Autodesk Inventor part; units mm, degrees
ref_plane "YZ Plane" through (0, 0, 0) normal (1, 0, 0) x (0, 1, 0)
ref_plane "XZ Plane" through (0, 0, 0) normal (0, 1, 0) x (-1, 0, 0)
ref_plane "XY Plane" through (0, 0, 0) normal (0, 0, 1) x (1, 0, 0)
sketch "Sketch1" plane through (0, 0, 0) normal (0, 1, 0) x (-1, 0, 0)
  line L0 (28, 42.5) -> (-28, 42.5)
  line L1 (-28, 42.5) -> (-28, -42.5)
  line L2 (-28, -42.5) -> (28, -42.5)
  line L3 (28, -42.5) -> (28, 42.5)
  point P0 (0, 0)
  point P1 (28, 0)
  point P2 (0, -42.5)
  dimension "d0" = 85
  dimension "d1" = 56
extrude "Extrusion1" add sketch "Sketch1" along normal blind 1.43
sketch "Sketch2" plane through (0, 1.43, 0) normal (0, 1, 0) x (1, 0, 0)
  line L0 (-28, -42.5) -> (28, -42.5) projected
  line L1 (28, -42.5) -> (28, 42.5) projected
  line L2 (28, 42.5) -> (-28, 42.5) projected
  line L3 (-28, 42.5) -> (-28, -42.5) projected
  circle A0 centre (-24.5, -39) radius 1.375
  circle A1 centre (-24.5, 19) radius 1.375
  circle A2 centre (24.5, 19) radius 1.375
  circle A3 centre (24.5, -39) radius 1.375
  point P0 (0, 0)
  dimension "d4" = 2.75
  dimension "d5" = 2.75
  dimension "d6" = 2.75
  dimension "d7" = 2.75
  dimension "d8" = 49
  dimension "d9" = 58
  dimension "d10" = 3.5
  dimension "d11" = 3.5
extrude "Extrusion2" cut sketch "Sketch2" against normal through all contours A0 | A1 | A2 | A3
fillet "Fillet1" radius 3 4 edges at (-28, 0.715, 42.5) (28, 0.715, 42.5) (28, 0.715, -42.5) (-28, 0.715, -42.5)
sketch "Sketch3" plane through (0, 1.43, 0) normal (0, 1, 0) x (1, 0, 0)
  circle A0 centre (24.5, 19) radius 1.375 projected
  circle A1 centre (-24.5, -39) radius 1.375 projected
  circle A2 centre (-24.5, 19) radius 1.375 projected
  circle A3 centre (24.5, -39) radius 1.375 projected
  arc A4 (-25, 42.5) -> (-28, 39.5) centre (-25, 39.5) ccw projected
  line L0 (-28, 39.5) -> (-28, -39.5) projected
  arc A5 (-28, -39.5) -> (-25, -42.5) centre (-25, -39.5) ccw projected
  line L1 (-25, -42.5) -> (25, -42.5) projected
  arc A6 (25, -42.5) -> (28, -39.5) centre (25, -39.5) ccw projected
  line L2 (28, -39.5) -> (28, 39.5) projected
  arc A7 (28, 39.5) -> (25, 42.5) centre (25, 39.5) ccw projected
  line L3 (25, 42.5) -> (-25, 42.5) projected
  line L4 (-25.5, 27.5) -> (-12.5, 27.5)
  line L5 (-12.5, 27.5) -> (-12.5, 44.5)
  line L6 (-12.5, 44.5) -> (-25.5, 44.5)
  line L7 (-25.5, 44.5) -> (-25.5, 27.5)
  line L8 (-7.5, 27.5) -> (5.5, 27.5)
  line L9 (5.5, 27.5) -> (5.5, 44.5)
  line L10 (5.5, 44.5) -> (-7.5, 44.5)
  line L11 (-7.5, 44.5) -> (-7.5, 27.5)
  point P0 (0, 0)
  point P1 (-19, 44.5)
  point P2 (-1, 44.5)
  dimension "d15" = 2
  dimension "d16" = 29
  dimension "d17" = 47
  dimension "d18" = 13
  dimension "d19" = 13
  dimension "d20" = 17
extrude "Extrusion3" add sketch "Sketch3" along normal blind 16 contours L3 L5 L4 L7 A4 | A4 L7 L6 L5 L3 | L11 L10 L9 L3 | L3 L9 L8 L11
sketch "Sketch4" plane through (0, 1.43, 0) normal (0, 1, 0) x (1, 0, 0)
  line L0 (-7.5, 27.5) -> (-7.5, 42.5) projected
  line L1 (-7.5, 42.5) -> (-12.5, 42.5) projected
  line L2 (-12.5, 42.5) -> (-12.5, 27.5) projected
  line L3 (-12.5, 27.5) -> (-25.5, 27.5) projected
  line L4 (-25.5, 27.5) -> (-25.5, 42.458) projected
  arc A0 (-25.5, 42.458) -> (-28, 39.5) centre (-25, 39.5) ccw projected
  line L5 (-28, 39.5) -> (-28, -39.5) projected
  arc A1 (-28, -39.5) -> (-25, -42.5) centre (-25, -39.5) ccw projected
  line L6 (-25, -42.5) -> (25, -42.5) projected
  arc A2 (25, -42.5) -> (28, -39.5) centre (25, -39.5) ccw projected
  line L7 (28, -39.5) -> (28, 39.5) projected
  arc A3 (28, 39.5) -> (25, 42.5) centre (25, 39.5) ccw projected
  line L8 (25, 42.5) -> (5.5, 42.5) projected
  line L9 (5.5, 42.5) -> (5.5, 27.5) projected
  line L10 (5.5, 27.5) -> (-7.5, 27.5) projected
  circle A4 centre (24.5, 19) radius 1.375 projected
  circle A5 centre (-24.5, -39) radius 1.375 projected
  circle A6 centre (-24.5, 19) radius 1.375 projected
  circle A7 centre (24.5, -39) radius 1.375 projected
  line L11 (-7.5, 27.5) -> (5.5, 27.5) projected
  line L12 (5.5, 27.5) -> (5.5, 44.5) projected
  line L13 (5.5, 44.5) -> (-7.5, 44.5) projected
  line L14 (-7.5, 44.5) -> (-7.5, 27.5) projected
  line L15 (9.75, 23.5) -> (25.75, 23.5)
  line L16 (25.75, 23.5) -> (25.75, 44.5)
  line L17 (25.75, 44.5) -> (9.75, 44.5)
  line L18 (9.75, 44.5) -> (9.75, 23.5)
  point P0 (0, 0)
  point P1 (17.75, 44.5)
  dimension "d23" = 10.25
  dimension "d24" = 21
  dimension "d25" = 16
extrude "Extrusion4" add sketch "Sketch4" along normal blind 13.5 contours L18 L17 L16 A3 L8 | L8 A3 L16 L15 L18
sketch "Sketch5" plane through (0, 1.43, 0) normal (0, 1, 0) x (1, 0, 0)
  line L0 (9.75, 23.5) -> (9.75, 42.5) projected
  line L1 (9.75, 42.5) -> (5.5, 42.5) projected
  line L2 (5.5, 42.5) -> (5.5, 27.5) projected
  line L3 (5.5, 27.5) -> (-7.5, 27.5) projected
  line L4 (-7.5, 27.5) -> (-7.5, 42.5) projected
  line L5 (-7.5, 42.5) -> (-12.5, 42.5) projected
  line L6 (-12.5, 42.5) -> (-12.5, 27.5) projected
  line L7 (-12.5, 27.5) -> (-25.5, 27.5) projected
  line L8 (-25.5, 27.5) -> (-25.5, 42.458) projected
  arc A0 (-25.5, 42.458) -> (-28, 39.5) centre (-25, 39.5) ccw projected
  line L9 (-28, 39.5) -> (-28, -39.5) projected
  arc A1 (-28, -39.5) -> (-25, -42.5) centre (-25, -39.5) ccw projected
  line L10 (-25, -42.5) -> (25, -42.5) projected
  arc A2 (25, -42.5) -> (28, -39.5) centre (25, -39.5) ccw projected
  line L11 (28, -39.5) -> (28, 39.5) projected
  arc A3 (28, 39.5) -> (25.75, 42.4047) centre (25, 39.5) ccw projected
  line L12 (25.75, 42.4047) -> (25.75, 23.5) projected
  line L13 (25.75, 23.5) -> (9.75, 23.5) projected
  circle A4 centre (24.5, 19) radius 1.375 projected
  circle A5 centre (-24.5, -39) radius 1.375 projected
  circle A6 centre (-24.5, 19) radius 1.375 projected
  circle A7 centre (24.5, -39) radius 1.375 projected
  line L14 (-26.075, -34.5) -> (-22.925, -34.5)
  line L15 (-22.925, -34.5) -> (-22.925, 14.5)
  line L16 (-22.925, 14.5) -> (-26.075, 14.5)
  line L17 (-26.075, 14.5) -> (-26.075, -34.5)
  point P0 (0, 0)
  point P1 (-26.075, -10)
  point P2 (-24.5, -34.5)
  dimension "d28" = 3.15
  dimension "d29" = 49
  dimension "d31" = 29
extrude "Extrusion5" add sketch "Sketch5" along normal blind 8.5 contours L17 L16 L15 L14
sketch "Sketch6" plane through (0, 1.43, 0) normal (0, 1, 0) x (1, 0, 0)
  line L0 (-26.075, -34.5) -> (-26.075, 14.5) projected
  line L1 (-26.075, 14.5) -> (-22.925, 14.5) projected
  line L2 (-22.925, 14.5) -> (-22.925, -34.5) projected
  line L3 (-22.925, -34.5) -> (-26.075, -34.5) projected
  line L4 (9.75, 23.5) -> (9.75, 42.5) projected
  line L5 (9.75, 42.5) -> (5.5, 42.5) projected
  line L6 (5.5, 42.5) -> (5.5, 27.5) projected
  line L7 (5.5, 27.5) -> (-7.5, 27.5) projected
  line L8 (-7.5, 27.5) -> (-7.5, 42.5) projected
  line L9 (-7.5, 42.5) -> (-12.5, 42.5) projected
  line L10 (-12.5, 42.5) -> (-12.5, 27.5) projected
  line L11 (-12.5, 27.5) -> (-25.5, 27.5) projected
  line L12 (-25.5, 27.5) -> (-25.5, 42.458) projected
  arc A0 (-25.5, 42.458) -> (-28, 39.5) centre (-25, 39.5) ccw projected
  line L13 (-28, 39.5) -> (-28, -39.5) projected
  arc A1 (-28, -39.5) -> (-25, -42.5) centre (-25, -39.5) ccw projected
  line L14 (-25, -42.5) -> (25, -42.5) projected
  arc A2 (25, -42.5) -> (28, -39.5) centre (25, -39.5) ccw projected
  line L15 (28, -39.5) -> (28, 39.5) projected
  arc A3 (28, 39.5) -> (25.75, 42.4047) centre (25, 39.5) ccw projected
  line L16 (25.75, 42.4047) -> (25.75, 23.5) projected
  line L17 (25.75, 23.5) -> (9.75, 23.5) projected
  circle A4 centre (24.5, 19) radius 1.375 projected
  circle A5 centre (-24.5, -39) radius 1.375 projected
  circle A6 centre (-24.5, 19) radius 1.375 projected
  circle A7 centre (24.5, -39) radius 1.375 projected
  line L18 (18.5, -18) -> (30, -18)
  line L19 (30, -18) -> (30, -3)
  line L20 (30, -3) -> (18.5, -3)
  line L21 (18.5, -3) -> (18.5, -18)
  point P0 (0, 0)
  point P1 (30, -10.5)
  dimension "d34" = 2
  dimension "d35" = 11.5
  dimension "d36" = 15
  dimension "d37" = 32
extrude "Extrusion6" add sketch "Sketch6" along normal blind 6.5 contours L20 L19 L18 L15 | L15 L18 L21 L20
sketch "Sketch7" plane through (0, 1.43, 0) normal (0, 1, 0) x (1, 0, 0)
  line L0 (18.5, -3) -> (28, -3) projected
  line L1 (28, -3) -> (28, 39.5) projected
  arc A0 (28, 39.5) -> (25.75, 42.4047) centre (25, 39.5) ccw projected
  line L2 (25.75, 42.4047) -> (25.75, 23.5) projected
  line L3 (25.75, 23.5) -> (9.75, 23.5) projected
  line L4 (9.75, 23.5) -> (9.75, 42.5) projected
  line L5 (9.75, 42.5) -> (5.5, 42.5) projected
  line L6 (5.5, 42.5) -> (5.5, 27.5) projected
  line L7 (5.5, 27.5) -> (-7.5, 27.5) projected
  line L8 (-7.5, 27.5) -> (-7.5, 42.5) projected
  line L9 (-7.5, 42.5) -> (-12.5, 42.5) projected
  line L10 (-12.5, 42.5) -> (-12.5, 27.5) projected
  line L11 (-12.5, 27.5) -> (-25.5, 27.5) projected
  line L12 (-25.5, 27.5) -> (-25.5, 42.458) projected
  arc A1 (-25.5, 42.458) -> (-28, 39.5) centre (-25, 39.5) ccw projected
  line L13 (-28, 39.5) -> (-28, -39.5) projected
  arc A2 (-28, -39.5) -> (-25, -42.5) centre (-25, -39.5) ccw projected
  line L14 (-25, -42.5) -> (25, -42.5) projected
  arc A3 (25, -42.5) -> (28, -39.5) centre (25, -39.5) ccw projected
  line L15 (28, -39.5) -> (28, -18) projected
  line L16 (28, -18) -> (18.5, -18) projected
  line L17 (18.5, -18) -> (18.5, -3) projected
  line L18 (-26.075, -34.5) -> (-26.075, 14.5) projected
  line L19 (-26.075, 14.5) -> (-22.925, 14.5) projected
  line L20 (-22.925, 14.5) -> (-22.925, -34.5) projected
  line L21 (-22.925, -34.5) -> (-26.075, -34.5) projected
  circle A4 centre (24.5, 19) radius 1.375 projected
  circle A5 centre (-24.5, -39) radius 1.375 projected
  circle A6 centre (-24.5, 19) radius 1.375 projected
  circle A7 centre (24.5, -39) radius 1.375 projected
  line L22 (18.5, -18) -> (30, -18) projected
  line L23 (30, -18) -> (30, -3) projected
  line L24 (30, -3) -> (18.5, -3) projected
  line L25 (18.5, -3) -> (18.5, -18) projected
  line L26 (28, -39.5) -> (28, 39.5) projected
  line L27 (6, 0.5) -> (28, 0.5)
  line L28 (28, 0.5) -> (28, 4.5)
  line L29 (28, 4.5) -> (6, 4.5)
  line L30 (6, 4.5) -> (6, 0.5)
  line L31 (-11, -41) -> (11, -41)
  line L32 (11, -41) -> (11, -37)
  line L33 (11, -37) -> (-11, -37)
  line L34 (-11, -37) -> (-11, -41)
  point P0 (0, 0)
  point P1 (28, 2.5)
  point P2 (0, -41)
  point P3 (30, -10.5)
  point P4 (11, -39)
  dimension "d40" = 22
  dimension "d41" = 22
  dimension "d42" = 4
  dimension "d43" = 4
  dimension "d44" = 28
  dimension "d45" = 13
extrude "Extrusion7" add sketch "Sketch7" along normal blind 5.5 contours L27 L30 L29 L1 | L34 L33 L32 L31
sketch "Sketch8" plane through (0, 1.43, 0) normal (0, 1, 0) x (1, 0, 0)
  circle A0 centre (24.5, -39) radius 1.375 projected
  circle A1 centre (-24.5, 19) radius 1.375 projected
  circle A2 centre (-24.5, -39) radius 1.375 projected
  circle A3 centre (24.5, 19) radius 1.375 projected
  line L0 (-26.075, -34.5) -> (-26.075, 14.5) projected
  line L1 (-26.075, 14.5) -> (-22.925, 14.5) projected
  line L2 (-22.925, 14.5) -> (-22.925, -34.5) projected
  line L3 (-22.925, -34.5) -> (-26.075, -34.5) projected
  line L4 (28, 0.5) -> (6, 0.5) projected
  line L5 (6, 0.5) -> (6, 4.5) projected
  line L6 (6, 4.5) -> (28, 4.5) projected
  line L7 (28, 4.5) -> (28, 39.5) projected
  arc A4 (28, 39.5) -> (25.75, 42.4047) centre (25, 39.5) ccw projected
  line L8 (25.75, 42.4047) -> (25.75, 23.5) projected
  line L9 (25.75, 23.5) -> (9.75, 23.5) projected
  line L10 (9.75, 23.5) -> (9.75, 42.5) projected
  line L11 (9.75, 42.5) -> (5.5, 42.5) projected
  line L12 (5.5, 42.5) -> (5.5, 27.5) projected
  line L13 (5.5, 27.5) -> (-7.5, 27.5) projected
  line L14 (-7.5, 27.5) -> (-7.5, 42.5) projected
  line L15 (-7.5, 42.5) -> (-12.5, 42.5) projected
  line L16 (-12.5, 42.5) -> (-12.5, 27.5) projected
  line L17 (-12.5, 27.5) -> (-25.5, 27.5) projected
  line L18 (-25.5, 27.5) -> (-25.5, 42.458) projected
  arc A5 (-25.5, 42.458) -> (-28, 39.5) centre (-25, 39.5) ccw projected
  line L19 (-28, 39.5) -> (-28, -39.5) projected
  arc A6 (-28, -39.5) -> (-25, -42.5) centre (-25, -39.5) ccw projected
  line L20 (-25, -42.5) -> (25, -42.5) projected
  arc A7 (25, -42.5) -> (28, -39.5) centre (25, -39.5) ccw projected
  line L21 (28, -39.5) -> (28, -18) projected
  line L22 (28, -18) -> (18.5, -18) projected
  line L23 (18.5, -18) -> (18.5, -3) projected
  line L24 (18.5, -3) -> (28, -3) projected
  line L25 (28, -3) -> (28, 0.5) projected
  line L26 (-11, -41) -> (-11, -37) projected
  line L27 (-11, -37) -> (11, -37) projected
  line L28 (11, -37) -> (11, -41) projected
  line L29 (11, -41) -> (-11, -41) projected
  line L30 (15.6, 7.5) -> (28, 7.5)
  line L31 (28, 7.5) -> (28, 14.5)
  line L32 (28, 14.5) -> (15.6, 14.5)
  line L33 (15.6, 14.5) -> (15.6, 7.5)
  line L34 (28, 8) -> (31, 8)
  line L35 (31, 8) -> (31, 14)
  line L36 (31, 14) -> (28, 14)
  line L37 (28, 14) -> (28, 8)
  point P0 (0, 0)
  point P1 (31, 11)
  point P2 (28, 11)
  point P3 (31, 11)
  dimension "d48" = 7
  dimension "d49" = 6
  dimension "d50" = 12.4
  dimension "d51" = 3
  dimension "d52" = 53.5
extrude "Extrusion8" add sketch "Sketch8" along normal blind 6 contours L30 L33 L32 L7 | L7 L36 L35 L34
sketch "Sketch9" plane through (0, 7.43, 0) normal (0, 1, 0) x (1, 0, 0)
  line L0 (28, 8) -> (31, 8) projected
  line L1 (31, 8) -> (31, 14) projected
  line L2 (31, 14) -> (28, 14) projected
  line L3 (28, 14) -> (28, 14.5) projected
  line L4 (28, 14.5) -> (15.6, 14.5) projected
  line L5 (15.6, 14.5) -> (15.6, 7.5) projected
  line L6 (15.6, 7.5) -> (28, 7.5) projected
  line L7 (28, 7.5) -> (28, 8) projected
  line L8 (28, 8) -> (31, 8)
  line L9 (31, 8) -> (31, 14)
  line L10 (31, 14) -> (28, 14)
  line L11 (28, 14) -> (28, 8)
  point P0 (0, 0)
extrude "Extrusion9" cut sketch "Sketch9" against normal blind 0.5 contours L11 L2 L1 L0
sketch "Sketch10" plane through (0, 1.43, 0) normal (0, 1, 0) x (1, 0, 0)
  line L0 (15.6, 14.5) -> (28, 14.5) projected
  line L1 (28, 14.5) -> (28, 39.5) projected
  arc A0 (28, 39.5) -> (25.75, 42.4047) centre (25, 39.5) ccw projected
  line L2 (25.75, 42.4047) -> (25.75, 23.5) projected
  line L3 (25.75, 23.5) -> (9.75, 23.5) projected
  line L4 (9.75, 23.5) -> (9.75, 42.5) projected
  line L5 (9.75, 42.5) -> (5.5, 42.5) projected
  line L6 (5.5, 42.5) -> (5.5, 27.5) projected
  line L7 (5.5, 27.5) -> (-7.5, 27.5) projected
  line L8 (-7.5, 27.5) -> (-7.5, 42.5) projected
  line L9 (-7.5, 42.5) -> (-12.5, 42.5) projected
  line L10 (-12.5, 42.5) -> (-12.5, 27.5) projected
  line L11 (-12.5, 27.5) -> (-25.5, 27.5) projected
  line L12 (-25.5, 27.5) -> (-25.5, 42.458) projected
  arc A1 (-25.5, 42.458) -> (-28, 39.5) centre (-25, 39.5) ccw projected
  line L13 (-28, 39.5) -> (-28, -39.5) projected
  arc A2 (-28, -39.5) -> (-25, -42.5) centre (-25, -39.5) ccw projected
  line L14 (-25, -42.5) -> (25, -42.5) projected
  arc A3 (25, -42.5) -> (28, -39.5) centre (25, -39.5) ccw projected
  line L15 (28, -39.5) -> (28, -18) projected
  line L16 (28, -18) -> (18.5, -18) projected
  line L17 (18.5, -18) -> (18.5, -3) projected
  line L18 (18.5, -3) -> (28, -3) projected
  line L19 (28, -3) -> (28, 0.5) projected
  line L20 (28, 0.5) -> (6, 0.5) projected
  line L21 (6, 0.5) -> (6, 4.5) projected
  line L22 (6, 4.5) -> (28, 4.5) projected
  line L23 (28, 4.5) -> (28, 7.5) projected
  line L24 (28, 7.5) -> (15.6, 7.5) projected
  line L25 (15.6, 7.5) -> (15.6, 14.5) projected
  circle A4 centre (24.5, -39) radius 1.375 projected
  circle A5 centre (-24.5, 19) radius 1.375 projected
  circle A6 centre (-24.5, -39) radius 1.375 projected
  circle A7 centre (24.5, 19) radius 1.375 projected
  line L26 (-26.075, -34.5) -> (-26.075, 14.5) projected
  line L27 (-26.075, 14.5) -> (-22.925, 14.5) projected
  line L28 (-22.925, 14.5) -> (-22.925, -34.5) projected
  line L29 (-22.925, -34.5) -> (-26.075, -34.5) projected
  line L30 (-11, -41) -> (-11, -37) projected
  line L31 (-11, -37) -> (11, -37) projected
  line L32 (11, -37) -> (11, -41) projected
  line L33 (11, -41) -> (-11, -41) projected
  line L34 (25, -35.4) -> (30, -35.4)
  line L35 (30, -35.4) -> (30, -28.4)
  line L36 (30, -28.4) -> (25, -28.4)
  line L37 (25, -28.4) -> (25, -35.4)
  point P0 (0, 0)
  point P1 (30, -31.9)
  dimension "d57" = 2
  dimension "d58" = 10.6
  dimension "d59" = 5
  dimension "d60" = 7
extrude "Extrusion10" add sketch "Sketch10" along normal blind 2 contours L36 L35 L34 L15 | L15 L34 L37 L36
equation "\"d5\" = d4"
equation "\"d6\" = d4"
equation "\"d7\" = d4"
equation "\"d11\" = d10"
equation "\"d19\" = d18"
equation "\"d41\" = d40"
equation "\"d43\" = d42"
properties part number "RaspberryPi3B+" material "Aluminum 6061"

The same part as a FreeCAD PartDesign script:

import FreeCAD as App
import Part
import Sketcher

V = App.Vector


def edges_at(feature, points):
    """Names of the edges that pass closest to the given points."""
    edges = feature.Shape.Edges
    near = lambda p: min(range(len(edges)), key=lambda i: edges[i].distToShape(Part.Vertex(*p))[0])
    return sorted({f"Edge{near(p) + 1}" for p in points})

doc = App.newDocument("Part")
body = doc.addObject("PartDesign::Body", "Body")

# Sketch on XZ plane
sketch1 = body.newObject("Sketcher::SketchObject", "Sketch")
sketch1.AttachmentSupport = (doc.getObject("XZ_Plane"), [""])
sketch1.MapMode = "FlatFace"
sketch1.addGeometry(Part.LineSegment(V(-28, -42, 0), V(-28, 42, 0)), False)
sketch1.addGeometry(Part.LineSegment(V(-28, 42, 0), V(28, 42, 0)), False)
sketch1.addGeometry(Part.LineSegment(V(28, 42, 0), V(28, -42, 0)), False)
sketch1.addGeometry(Part.LineSegment(V(28, -42, 0), V(-28, -42, 0)), False)
sketch1.addConstraint(Sketcher.Constraint("Coincident", 0, 2, 1, 1))
sketch1.addConstraint(Sketcher.Constraint("Coincident", 1, 2, 2, 1))
sketch1.addConstraint(Sketcher.Constraint("Coincident", 2, 2, 3, 1))
sketch1.addConstraint(Sketcher.Constraint("Coincident", 3, 2, 0, 1))
sketch1.addConstraint(Sketcher.Constraint("Vertical", 0))
sketch1.addConstraint(Sketcher.Constraint("Horizontal", 1))
sketch1.addConstraint(Sketcher.Constraint("Vertical", 2))
sketch1.addConstraint(Sketcher.Constraint("Horizontal", 3))
sketch1.addConstraint(Sketcher.Constraint("Symmetric", 0, 2, 2, 2, -1, 1))
sketch1.addConstraint(Sketcher.Constraint("DistanceX", 1, 1, 1, 2, 56.0))
sketch1.addConstraint(Sketcher.Constraint("DistanceY", 0, 1, 0, 2, 85.0))
pad1 = body.newObject("PartDesign::Pad", "Pad")
pad1.Profile = sketch1
pad1.Length = 1.43
pad1.Reversed = True

# Sketch on XZ plane
sketch2 = body.newObject("Sketcher::SketchObject", "Sketch001")
sketch2.AttachmentSupport = (doc.getObject("XZ_Plane"), [""])
sketch2.MapMode = "FlatFace"
sketch2.AttachmentOffset = App.Placement(V(0, 0, -1.43), App.Rotation())
sketch2.addGeometry(Part.Circle(V(-24.5, 39, 0), V(0, 0, 1), 1.4), False)
sketch2.addGeometry(Part.Circle(V(-24.5, -19, 0), V(0, 0, 1), 1.4), False)
sketch2.addGeometry(Part.Circle(V(24.5, -19, 0), V(0, 0, 1), 1.4), False)
sketch2.addGeometry(Part.Circle(V(24.5, 39, 0), V(0, 0, 1), 1.4), False)
sketch2.addConstraint(Sketcher.Constraint("Equal", 0, 1))
sketch2.addConstraint(Sketcher.Constraint("Equal", 1, 2))
sketch2.addConstraint(Sketcher.Constraint("Equal", 2, 3))
sketch2.addConstraint(Sketcher.Constraint("Symmetric", 1, 3, 2, 3, -2))
sketch2.addConstraint(Sketcher.Constraint("Symmetric", 0, 3, 3, 3, -2))
sketch2.addConstraint(Sketcher.Constraint("Vertical", 0, 3, 1, 3))
sketch2.addConstraint(Sketcher.Constraint("Diameter", 0, 2.75))
sketch2.addConstraint(Sketcher.Constraint("DistanceY", 1, 3, 0, 3, 58.0))
sketch2.addConstraint(Sketcher.Constraint("DistanceX", 1, 3, 2, 3, 49.0))
sketch2.addConstraint(Sketcher.Constraint("DistanceY", -1, 1, 0, 3, 39.0))
pocket1 = body.newObject("PartDesign::Pocket", "Pocket")
pocket1.Profile = sketch2
pocket1.Type = "ThroughAll"
pocket1.Reversed = True
doc.recompute()

fillet = body.newObject("PartDesign::Fillet", "Fillet")
fillet.Base = (pocket1, edges_at(pocket1, [
    (-28, 0.715, 42.5),
    (28, 0.715, 42.5),
    (28, 0.715, -42.5),
    (-28, 0.715, -42.5),
]))
fillet.Radius = 3

# Sketch on XZ plane
sketch3 = body.newObject("Sketcher::SketchObject", "Sketch002")
sketch3.AttachmentSupport = (doc.getObject("XZ_Plane"), [""])
sketch3.MapMode = "FlatFace"
sketch3.AttachmentOffset = App.Placement(V(0, 0, -1.43), App.Rotation())
sketch3.addGeometry(Part.LineSegment(V(-12, -28, 0), V(-12, -44, 0)), False)
sketch3.addGeometry(Part.LineSegment(V(-12, -44, 0), V(-26, -44, 0)), False)
sketch3.addGeometry(Part.LineSegment(V(-26, -44, 0), V(-26, -28, 0)), False)
sketch3.addGeometry(Part.LineSegment(V(-26, -28, 0), V(-12, -28, 0)), False)
sketch3.addGeometry(Part.LineSegment(V(-8, -44, 0), V(-8, -28, 0)), False)
sketch3.addGeometry(Part.LineSegment(V(-8, -28, 0), V(6, -28, 0)), False)
sketch3.addGeometry(Part.LineSegment(V(6, -28, 0), V(6, -44, 0)), False)
sketch3.addGeometry(Part.LineSegment(V(6, -44, 0), V(-8, -44, 0)), False)
sketch3.addConstraint(Sketcher.Constraint("Coincident", 0, 2, 1, 1))
sketch3.addConstraint(Sketcher.Constraint("Coincident", 1, 2, 2, 1))
sketch3.addConstraint(Sketcher.Constraint("Coincident", 2, 2, 3, 1))
sketch3.addConstraint(Sketcher.Constraint("Coincident", 3, 2, 0, 1))
sketch3.addConstraint(Sketcher.Constraint("Coincident", 4, 2, 5, 1))
sketch3.addConstraint(Sketcher.Constraint("Coincident", 5, 2, 6, 1))
sketch3.addConstraint(Sketcher.Constraint("Coincident", 6, 2, 7, 1))
sketch3.addConstraint(Sketcher.Constraint("Coincident", 7, 2, 4, 1))
sketch3.addConstraint(Sketcher.Constraint("Vertical", 0))
sketch3.addConstraint(Sketcher.Constraint("Horizontal", 1))
sketch3.addConstraint(Sketcher.Constraint("Vertical", 2))
sketch3.addConstraint(Sketcher.Constraint("Horizontal", 3))
sketch3.addConstraint(Sketcher.Constraint("Vertical", 4))
sketch3.addConstraint(Sketcher.Constraint("Horizontal", 5))
sketch3.addConstraint(Sketcher.Constraint("Vertical", 6))
sketch3.addConstraint(Sketcher.Constraint("Horizontal", 7))
sketch3.addConstraint(Sketcher.Constraint("Horizontal", 3, 2, 4, 2))
sketch3.addConstraint(Sketcher.Constraint("Horizontal", 1, 2, 6, 2))
sketch3.addConstraint(Sketcher.Constraint("Equal", 3, 5))
sketch3.addConstraint(Sketcher.Constraint("DistanceX", 1, 2, 1, 1, 13.0))
sketch3.addConstraint(Sketcher.Constraint("DistanceY", 0, 2, 0, 1, 17.0))
sketch3.addConstraint(Sketcher.Constraint("DistanceX", 3, 2, 4, 2, 5.0))
sketch3.addConstraint(Sketcher.Constraint("DistanceX", 0, 2, -1, 1, 12.5))
sketch3.addConstraint(Sketcher.Constraint("DistanceY", 0, 2, -1, 1, 44.5))
pad2 = body.newObject("PartDesign::Pad", "Pad001")
pad2.Profile = sketch3
pad2.Length = 16
pad2.Reversed = True

# Sketch on XZ plane
sketch4 = body.newObject("Sketcher::SketchObject", "Sketch003")
sketch4.AttachmentSupport = (doc.getObject("XZ_Plane"), [""])
sketch4.MapMode = "FlatFace"
sketch4.AttachmentOffset = App.Placement(V(0, 0, -1.43), App.Rotation())
sketch4.addGeometry(Part.LineSegment(V(10, -44, 0), V(10, -24, 0)), False)
sketch4.addGeometry(Part.LineSegment(V(10, -24, 0), V(26, -24, 0)), False)
sketch4.addGeometry(Part.LineSegment(V(26, -24, 0), V(26, -44, 0)), False)
sketch4.addGeometry(Part.LineSegment(V(26, -44, 0), V(10, -44, 0)), False)
sketch4.addConstraint(Sketcher.Constraint("Coincident", 0, 2, 1, 1))
sketch4.addConstraint(Sketcher.Constraint("Coincident", 1, 2, 2, 1))
sketch4.addConstraint(Sketcher.Constraint("Coincident", 2, 2, 3, 1))
sketch4.addConstraint(Sketcher.Constraint("Coincident", 3, 2, 0, 1))
sketch4.addConstraint(Sketcher.Constraint("Vertical", 0))
sketch4.addConstraint(Sketcher.Constraint("Horizontal", 1))
sketch4.addConstraint(Sketcher.Constraint("Vertical", 2))
sketch4.addConstraint(Sketcher.Constraint("Horizontal", 3))
sketch4.addConstraint(Sketcher.Constraint("DistanceX", 1, 1, 1, 2, 16.0))
sketch4.addConstraint(Sketcher.Constraint("DistanceY", 0, 1, 0, 2, 21.0))
sketch4.addConstraint(Sketcher.Constraint("DistanceY", 0, 2, -1, 1, 23.5))
sketch4.addConstraint(Sketcher.Constraint("DistanceX", -1, 1, 0, 2, 9.75))
pad3 = body.newObject("PartDesign::Pad", "Pad002")
pad3.Profile = sketch4
pad3.Length = 13.5
pad3.Reversed = True

# Sketch on XZ plane
sketch5 = body.newObject("Sketcher::SketchObject", "Sketch004")
sketch5.AttachmentSupport = (doc.getObject("XZ_Plane"), [""])
sketch5.MapMode = "FlatFace"
sketch5.AttachmentOffset = App.Placement(V(0, 0, -1.43), App.Rotation())
sketch5.addGeometry(Part.LineSegment(V(-26.1, -14.5, 0), V(-26.1, 34.5, 0)), False)
sketch5.addGeometry(Part.LineSegment(V(-26.1, 34.5, 0), V(-22.9, 34.5, 0)), False)
sketch5.addGeometry(Part.LineSegment(V(-22.9, 34.5, 0), V(-22.9, -14.5, 0)), False)
sketch5.addGeometry(Part.LineSegment(V(-22.9, -14.5, 0), V(-26.1, -14.5, 0)), False)
sketch5.addConstraint(Sketcher.Constraint("Coincident", 0, 2, 1, 1))
sketch5.addConstraint(Sketcher.Constraint("Coincident", 1, 2, 2, 1))
sketch5.addConstraint(Sketcher.Constraint("Coincident", 2, 2, 3, 1))
sketch5.addConstraint(Sketcher.Constraint("Coincident", 3, 2, 0, 1))
sketch5.addConstraint(Sketcher.Constraint("Vertical", 0))
sketch5.addConstraint(Sketcher.Constraint("Horizontal", 1))
sketch5.addConstraint(Sketcher.Constraint("Vertical", 2))
sketch5.addConstraint(Sketcher.Constraint("Horizontal", 3))
sketch5.addConstraint(Sketcher.Constraint("DistanceY", 0, 1, 0, 2, 49.0))
sketch5.addConstraint(Sketcher.Constraint("DistanceX", 1, 1, 1, 2, 3.15))
sketch5.addConstraint(Sketcher.Constraint("DistanceY", -1, 1, 0, 2, 34.5))
sketch5.addConstraint(Sketcher.Constraint("DistanceX", 0, 2, -1, 1, 26.075))
pad4 = body.newObject("PartDesign::Pad", "Pad003")
pad4.Profile = sketch5
pad4.Length = 8.5
pad4.Reversed = True

# Sketch on XZ plane
sketch6 = body.newObject("Sketcher::SketchObject", "Sketch005")
sketch6.AttachmentSupport = (doc.getObject("XZ_Plane"), [""])
sketch6.MapMode = "FlatFace"
sketch6.AttachmentOffset = App.Placement(V(0, 0, -1.43), App.Rotation())
sketch6.addGeometry(Part.LineSegment(V(30, 3, 0), V(18, 3, 0)), False)
sketch6.addGeometry(Part.LineSegment(V(18, 3, 0), V(18, 18, 0)), False)
sketch6.addGeometry(Part.LineSegment(V(18, 18, 0), V(30, 18, 0)), False)
sketch6.addGeometry(Part.LineSegment(V(30, 18, 0), V(30, 3, 0)), False)
sketch6.addConstraint(Sketcher.Constraint("Coincident", 0, 2, 1, 1))
sketch6.addConstraint(Sketcher.Constraint("Coincident", 1, 2, 2, 1))
sketch6.addConstraint(Sketcher.Constraint("Coincident", 2, 2, 3, 1))
sketch6.addConstraint(Sketcher.Constraint("Coincident", 3, 2, 0, 1))
sketch6.addConstraint(Sketcher.Constraint("Horizontal", 0))
sketch6.addConstraint(Sketcher.Constraint("Vertical", 1))
sketch6.addConstraint(Sketcher.Constraint("Horizontal", 2))
sketch6.addConstraint(Sketcher.Constraint("Vertical", 3))
sketch6.addConstraint(Sketcher.Constraint("DistanceY", 1, 1, 1, 2, 15.0))
sketch6.addConstraint(Sketcher.Constraint("DistanceX", 0, 2, 0, 1, 11.5))
sketch6.addConstraint(Sketcher.Constraint("DistanceY", -1, 1, 0, 2, 3.0))
sketch6.addConstraint(Sketcher.Constraint("DistanceX", -1, 1, 2, 2, 30.0))
pad5 = body.newObject("PartDesign::Pad", "Pad004")
pad5.Profile = sketch6
pad5.Length = 6.5
pad5.Reversed = True

# Sketch on XZ plane
sketch7 = body.newObject("Sketcher::SketchObject", "Sketch006")
sketch7.AttachmentSupport = (doc.getObject("XZ_Plane"), [""])
sketch7.MapMode = "FlatFace"
sketch7.AttachmentOffset = App.Placement(V(0, 0, -1.43), App.Rotation())
sketch7.addGeometry(Part.LineSegment(V(6, -0.5, 0), V(28, -0.5, 0)), False)
sketch7.addGeometry(Part.LineSegment(V(28, -0.5, 0), V(28, -4.5, 0)), False)
sketch7.addGeometry(Part.LineSegment(V(28, -4.5, 0), V(6, -4.5, 0)), False)
sketch7.addGeometry(Part.LineSegment(V(6, -4.5, 0), V(6, -0.5, 0)), False)
sketch7.addGeometry(Part.LineSegment(V(-11, 37, 0), V(-11, 41, 0)), False)
sketch7.addGeometry(Part.LineSegment(V(-11, 41, 0), V(11, 41, 0)), False)
sketch7.addGeometry(Part.LineSegment(V(11, 41, 0), V(11, 37, 0)), False)
sketch7.addGeometry(Part.LineSegment(V(11, 37, 0), V(-11, 37, 0)), False)
sketch7.addConstraint(Sketcher.Constraint("Coincident", 0, 2, 1, 1))
sketch7.addConstraint(Sketcher.Constraint("Coincident", 1, 2, 2, 1))
sketch7.addConstraint(Sketcher.Constraint("Coincident", 2, 2, 3, 1))
sketch7.addConstraint(Sketcher.Constraint("Coincident", 3, 2, 0, 1))
sketch7.addConstraint(Sketcher.Constraint("Coincident", 4, 2, 5, 1))
sketch7.addConstraint(Sketcher.Constraint("Coincident", 5, 2, 6, 1))
sketch7.addConstraint(Sketcher.Constraint("Coincident", 6, 2, 7, 1))
sketch7.addConstraint(Sketcher.Constraint("Coincident", 7, 2, 4, 1))
sketch7.addConstraint(Sketcher.Constraint("Horizontal", 0))
sketch7.addConstraint(Sketcher.Constraint("Vertical", 1))
sketch7.addConstraint(Sketcher.Constraint("Horizontal", 2))
sketch7.addConstraint(Sketcher.Constraint("Vertical", 3))
sketch7.addConstraint(Sketcher.Constraint("Vertical", 4))
sketch7.addConstraint(Sketcher.Constraint("Horizontal", 5))
sketch7.addConstraint(Sketcher.Constraint("Vertical", 6))
sketch7.addConstraint(Sketcher.Constraint("Horizontal", 7))
sketch7.addConstraint(Sketcher.Constraint("Equal", 2, 5))
sketch7.addConstraint(Sketcher.Constraint("Equal", 3, 4))
sketch7.addConstraint(Sketcher.Constraint("DistanceX", 0, 1, 0, 2, 22.0))
sketch7.addConstraint(Sketcher.Constraint("DistanceY", 1, 2, 1, 1, 4.0))
sketch7.addConstraint(Sketcher.Constraint("DistanceX", -1, 1, 0, 2, 28.0))
sketch7.addConstraint(Sketcher.Constraint("DistanceX", 4, 2, -1, 1, 11.0))
sketch7.addConstraint(Sketcher.Constraint("DistanceY", -1, 1, 4, 2, 41.0))
sketch7.addConstraint(Sketcher.Constraint("DistanceY", 0, 2, -1, 1, 0.5))
pad6 = body.newObject("PartDesign::Pad", "Pad005")
pad6.Profile = sketch7
pad6.Length = 5.5
pad6.Reversed = True

# Sketch on XZ plane
sketch8 = body.newObject("Sketcher::SketchObject", "Sketch007")
sketch8.AttachmentSupport = (doc.getObject("XZ_Plane"), [""])
sketch8.MapMode = "FlatFace"
sketch8.AttachmentOffset = App.Placement(V(0, 0, -1.43), App.Rotation())
sketch8.addGeometry(Part.LineSegment(V(15.6, -7.5, 0), V(28, -7.5, 0)), False)
sketch8.addGeometry(Part.LineSegment(V(28, -7.5, 0), V(28, -8, 0)), False)
sketch8.addGeometry(Part.LineSegment(V(28, -8, 0), V(31, -8, 0)), False)
sketch8.addGeometry(Part.LineSegment(V(31, -8, 0), V(31, -14, 0)), False)
sketch8.addGeometry(Part.LineSegment(V(31, -14, 0), V(28, -14, 0)), False)
sketch8.addGeometry(Part.LineSegment(V(28, -14, 0), V(28, -14.5, 0)), False)
sketch8.addGeometry(Part.LineSegment(V(28, -14.5, 0), V(15.6, -14.5, 0)), False)
sketch8.addGeometry(Part.LineSegment(V(15.6, -14.5, 0), V(15.6, -7.5, 0)), False)
sketch8.addConstraint(Sketcher.Constraint("Coincident", 0, 2, 1, 1))
sketch8.addConstraint(Sketcher.Constraint("Coincident", 1, 2, 2, 1))
sketch8.addConstraint(Sketcher.Constraint("Coincident", 2, 2, 3, 1))
sketch8.addConstraint(Sketcher.Constraint("Coincident", 3, 2, 4, 1))
sketch8.addConstraint(Sketcher.Constraint("Coincident", 4, 2, 5, 1))
sketch8.addConstraint(Sketcher.Constraint("Coincident", 5, 2, 6, 1))
sketch8.addConstraint(Sketcher.Constraint("Coincident", 6, 2, 7, 1))
sketch8.addConstraint(Sketcher.Constraint("Coincident", 7, 2, 0, 1))
sketch8.addConstraint(Sketcher.Constraint("Horizontal", 0))
sketch8.addConstraint(Sketcher.Constraint("Vertical", 1))
sketch8.addConstraint(Sketcher.Constraint("Horizontal", 2))
sketch8.addConstraint(Sketcher.Constraint("Vertical", 3))
sketch8.addConstraint(Sketcher.Constraint("Horizontal", 4))
sketch8.addConstraint(Sketcher.Constraint("Vertical", 5))
sketch8.addConstraint(Sketcher.Constraint("Horizontal", 6))
sketch8.addConstraint(Sketcher.Constraint("Vertical", 7))
sketch8.addConstraint(Sketcher.Constraint("Vertical", 1, 2, 4, 2))
sketch8.addConstraint(Sketcher.Constraint("Equal", 1, 5))
sketch8.addConstraint(Sketcher.Constraint("DistanceX", 2, 1, 2, 2, 3.0))
sketch8.addConstraint(Sketcher.Constraint("DistanceY", 3, 2, 3, 1, 6.0))
sketch8.addConstraint(Sketcher.Constraint("DistanceY", 7, 1, 7, 2, 7.0))
sketch8.addConstraint(Sketcher.Constraint("DistanceX", 0, 1, 0, 2, 12.4))
sketch8.addConstraint(Sketcher.Constraint("DistanceX", -1, 1, 0, 2, 28.0))
sketch8.addConstraint(Sketcher.Constraint("DistanceY", 1, 2, -1, 1, 8.0))
pad7 = body.newObject("PartDesign::Pad", "Pad006")
pad7.Profile = sketch8
pad7.Length = 6
pad7.Reversed = True

# Sketch on XZ plane
sketch9 = body.newObject("Sketcher::SketchObject", "Sketch008")
sketch9.AttachmentSupport = (doc.getObject("XZ_Plane"), [""])
sketch9.MapMode = "FlatFace"
sketch9.AttachmentOffset = App.Placement(V(0, 0, -7.43), App.Rotation())
sketch9.addGeometry(Part.LineSegment(V(28, -14, 0), V(28, -8, 0)), False)
sketch9.addGeometry(Part.LineSegment(V(28, -8, 0), V(31, -8, 0)), False)
sketch9.addGeometry(Part.LineSegment(V(31, -8, 0), V(31, -14, 0)), False)
sketch9.addGeometry(Part.LineSegment(V(31, -14, 0), V(28, -14, 0)), False)
sketch9.addConstraint(Sketcher.Constraint("Coincident", 0, 2, 1, 1))
sketch9.addConstraint(Sketcher.Constraint("Coincident", 1, 2, 2, 1))
sketch9.addConstraint(Sketcher.Constraint("Coincident", 2, 2, 3, 1))
sketch9.addConstraint(Sketcher.Constraint("Coincident", 3, 2, 0, 1))
sketch9.addConstraint(Sketcher.Constraint("Vertical", 0))
sketch9.addConstraint(Sketcher.Constraint("Horizontal", 1))
sketch9.addConstraint(Sketcher.Constraint("Vertical", 2))
sketch9.addConstraint(Sketcher.Constraint("Horizontal", 3))
sketch9.addConstraint(Sketcher.Constraint("DistanceX", 1, 1, 1, 2, 3.0))
sketch9.addConstraint(Sketcher.Constraint("DistanceY", 0, 1, 0, 2, 6.0))
sketch9.addConstraint(Sketcher.Constraint("DistanceX", -1, 1, 0, 2, 28.0))
sketch9.addConstraint(Sketcher.Constraint("DistanceY", 0, 2, -1, 1, 8.0))
pocket2 = body.newObject("PartDesign::Pocket", "Pocket001")
pocket2.Profile = sketch9
pocket2.Length = 0.5
pocket2.Reversed = True

# Sketch on XZ plane
sketch10 = body.newObject("Sketcher::SketchObject", "Sketch009")
sketch10.AttachmentSupport = (doc.getObject("XZ_Plane"), [""])
sketch10.MapMode = "FlatFace"
sketch10.AttachmentOffset = App.Placement(V(0, 0, -1.43), App.Rotation())
sketch10.addGeometry(Part.LineSegment(V(30, 28, 0), V(25, 28, 0)), False)
sketch10.addGeometry(Part.LineSegment(V(25, 28, 0), V(25, 35, 0)), False)
sketch10.addGeometry(Part.LineSegment(V(25, 35, 0), V(30, 35, 0)), False)
sketch10.addGeometry(Part.LineSegment(V(30, 35, 0), V(30, 28, 0)), False)
sketch10.addConstraint(Sketcher.Constraint("Coincident", 0, 2, 1, 1))
sketch10.addConstraint(Sketcher.Constraint("Coincident", 1, 2, 2, 1))
sketch10.addConstraint(Sketcher.Constraint("Coincident", 2, 2, 3, 1))
sketch10.addConstraint(Sketcher.Constraint("Coincident", 3, 2, 0, 1))
sketch10.addConstraint(Sketcher.Constraint("Horizontal", 0))
sketch10.addConstraint(Sketcher.Constraint("Vertical", 1))
sketch10.addConstraint(Sketcher.Constraint("Horizontal", 2))
sketch10.addConstraint(Sketcher.Constraint("Vertical", 3))
sketch10.addConstraint(Sketcher.Constraint("DistanceX", 0, 2, 0, 1, 5.0))
sketch10.addConstraint(Sketcher.Constraint("DistanceY", 1, 1, 1, 2, 7.0))
sketch10.addConstraint(Sketcher.Constraint("DistanceX", -1, 1, 0, 2, 25.0))
sketch10.addConstraint(Sketcher.Constraint("DistanceY", -1, 1, 0, 2, 28.4))
pad8 = body.newObject("PartDesign::Pad", "Pad007")
pad8.Profile = sketch10
pad8.Length = 2
pad8.Reversed = True

doc.recompute()
